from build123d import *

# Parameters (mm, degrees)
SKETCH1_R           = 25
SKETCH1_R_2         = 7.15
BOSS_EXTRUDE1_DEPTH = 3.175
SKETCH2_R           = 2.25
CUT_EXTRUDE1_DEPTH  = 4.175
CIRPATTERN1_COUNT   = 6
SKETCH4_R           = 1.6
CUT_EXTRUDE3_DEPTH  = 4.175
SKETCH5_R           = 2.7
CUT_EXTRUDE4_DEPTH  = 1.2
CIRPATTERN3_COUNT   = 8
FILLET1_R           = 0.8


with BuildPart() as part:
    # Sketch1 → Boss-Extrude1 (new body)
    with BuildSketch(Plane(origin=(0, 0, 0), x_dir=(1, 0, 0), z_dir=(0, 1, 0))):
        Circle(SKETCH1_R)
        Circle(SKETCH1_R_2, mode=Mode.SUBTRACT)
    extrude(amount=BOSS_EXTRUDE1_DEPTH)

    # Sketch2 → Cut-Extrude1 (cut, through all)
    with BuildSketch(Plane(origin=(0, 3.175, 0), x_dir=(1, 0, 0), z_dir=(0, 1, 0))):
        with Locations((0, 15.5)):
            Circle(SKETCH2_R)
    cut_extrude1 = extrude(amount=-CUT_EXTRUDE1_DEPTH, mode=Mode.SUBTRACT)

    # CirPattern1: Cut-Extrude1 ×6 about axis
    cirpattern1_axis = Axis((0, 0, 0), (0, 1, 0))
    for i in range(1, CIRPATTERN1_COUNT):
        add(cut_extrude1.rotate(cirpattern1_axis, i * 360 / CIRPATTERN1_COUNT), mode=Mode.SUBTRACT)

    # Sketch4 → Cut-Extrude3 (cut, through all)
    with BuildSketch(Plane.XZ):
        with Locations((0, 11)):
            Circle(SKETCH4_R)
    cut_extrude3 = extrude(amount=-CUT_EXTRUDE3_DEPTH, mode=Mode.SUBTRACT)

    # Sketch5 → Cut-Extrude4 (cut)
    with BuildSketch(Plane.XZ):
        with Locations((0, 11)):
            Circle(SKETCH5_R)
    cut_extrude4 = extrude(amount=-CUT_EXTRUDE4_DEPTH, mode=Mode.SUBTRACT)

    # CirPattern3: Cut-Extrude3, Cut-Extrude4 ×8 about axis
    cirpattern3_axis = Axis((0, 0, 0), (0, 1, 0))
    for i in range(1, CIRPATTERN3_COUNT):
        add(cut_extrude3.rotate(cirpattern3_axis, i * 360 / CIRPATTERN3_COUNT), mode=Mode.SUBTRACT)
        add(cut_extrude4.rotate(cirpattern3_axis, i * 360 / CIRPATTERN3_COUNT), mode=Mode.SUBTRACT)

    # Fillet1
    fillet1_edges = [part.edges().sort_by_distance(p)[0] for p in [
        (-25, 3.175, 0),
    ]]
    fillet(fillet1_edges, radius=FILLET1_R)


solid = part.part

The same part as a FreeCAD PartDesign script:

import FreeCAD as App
import Part
import Sketcher

V = App.Vector
Q = App.Units.Quantity


def edges_at(feature, points):
    """Names of the edges that pass closest to the given points."""
    edges = feature.Shape.Edges
    near = lambda p: min(range(len(edges)), key=lambda i: edges[i].distToShape(Part.Vertex(*p))[0])
    return sorted({f"Edge{near(p) + 1}" for p in points})

doc = App.newDocument("Part")
body = doc.addObject("PartDesign::Body", "Body")

sketch1 = body.newObject("Sketcher::SketchObject", "Sketch")
sketch1.AttachmentSupport = (doc.getObject("XZ_Plane"), [""])
sketch1.MapMode = "FlatFace"
sketch1.addGeometry(Part.Circle(V(0, 0, 0), V(0, 0, 1), 25), False)
sketch1.addGeometry(Part.Circle(V(0, 0, 0), V(0, 0, 1), 7.15), False)
sketch1.addConstraint(Sketcher.Constraint("Coincident", 0, 3, -1, 1))
sketch1.addConstraint(Sketcher.Constraint("Coincident", 1, 3, -1, 1))
sketch1.addConstraint(Sketcher.Constraint("Diameter", 0, Q("50 mm")))
sketch1.addConstraint(Sketcher.Constraint("Diameter", 1, Q("14.3 mm")))
pad1 = body.newObject("PartDesign::Pad", "Pad")
pad1.Profile = sketch1
pad1.Length = 3.175
pad1.Reversed = True

sketch2 = body.newObject("Sketcher::SketchObject", "Sketch001")
sketch2.AttachmentSupport = (doc.getObject("XZ_Plane"), [""])
sketch2.MapMode = "FlatFace"
sketch2.AttachmentOffset = App.Placement(V(0, 0, -3.175), App.Rotation())
sketch2.addGeometry(Part.Circle(V(0, -15.5, 0), V(0, 0, 1), 2.25), False)
sketch2.addConstraint(Sketcher.Constraint("PointOnObject", 0, 3, -2))
sketch2.addConstraint(Sketcher.Constraint("Diameter", 0, Q("4.5 mm")))
sketch2.addConstraint(Sketcher.Constraint("DistanceY", 0, 3, -1, 1, Q("15.5 mm")))
pocket1 = body.newObject("PartDesign::Pocket", "Pocket")
pocket1.Profile = sketch2
pocket1.Type = "ThroughAll"
pocket1.Reversed = True
doc.recompute()

polarpattern = body.newObject("PartDesign::PolarPattern", "PolarPattern")
polarpattern.Originals = [pocket1]
polarpattern.Axis = (doc.getObject("Y_Axis"), [""])
polarpattern.Angle = 360
polarpattern.Occurrences = 6
body.Tip = polarpattern

sketch3 = body.newObject("Sketcher::SketchObject", "Sketch002")
sketch3.AttachmentSupport = (doc.getObject("XZ_Plane"), [""])
sketch3.MapMode = "FlatFace"
sketch3.addGeometry(Part.Circle(V(0, 11, 0), V(0, 0, 1), 1.6), False)
sketch3.addConstraint(Sketcher.Constraint("PointOnObject", 0, 3, -2))
sketch3.addConstraint(Sketcher.Constraint("Diameter", 0, Q("3.2 mm")))
sketch3.addConstraint(Sketcher.Constraint("DistanceY", -1, 1, 0, 3, Q("11 mm")))
pocket2 = body.newObject("PartDesign::Pocket", "Pocket001")
pocket2.Profile = sketch3
pocket2.Type = "ThroughAll"

sketch4 = body.newObject("Sketcher::SketchObject", "Sketch003")
sketch4.AttachmentSupport = (doc.getObject("XZ_Plane"), [""])
sketch4.MapMode = "FlatFace"
sketch4.addGeometry(Part.Circle(V(0, 11, 0), V(0, 0, 1), 2.7), False)
sketch4.addConstraint(Sketcher.Constraint("PointOnObject", 0, 3, -2))
sketch4.addConstraint(Sketcher.Constraint("Diameter", 0, Q("5.4 mm")))
sketch4.addConstraint(Sketcher.Constraint("DistanceY", -1, 1, 0, 3, Q("11 mm")))
pocket3 = body.newObject("PartDesign::Pocket", "Pocket002")
pocket3.Profile = sketch4
pocket3.Length = 1.2
doc.recompute()

polarpattern2 = body.newObject("PartDesign::PolarPattern", "PolarPattern001")
polarpattern2.Originals = [pocket2, pocket3]
polarpattern2.Axis = (doc.getObject("Y_Axis"), [""])
polarpattern2.Angle = 360
polarpattern2.Occurrences = 8
body.Tip = polarpattern2
doc.recompute()

fillet = body.newObject("PartDesign::Fillet", "Fillet")
fillet.Base = (polarpattern2, edges_at(polarpattern2, [(-25, 3.175, 0)]))
fillet.Radius = 0.8

doc.recompute()
